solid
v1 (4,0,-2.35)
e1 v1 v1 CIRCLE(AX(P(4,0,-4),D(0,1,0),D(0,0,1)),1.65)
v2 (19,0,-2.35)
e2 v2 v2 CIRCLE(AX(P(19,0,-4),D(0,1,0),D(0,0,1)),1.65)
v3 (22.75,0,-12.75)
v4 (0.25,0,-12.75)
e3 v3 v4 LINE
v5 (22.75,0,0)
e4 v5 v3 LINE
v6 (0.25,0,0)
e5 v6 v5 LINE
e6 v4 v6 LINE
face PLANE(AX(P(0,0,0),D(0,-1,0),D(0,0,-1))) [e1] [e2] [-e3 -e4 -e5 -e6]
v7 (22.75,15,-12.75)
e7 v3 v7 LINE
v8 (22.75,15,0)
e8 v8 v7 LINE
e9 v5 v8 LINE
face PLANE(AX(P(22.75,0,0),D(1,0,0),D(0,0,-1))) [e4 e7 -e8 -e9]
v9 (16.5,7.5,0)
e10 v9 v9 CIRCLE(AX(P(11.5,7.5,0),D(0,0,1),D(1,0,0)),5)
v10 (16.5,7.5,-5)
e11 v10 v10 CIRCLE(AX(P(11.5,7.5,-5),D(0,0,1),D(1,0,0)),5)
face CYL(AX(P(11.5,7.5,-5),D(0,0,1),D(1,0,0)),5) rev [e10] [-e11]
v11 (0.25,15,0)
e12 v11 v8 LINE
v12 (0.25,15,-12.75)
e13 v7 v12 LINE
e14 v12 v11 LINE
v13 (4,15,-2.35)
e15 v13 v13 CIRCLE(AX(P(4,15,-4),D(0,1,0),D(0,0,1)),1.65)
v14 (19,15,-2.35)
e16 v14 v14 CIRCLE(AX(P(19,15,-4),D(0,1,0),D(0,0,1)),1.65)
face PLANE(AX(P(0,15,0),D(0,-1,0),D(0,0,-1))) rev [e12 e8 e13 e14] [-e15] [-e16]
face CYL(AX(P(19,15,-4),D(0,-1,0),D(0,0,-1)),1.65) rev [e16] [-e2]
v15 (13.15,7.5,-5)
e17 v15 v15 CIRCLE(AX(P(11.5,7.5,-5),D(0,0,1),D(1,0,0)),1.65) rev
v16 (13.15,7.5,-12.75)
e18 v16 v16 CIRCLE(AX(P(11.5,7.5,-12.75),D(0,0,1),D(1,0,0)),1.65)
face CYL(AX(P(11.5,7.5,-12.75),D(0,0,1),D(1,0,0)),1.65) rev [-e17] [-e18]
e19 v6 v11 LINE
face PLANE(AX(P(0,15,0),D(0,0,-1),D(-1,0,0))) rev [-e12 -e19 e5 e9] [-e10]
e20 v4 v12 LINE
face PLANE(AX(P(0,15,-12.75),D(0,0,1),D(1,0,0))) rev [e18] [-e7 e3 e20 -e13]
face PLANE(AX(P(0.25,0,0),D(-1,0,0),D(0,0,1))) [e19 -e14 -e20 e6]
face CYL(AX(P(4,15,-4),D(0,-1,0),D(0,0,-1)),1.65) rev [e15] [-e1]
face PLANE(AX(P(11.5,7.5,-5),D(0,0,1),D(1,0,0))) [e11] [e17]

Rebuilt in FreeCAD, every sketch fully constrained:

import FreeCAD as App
import Part
import Sketcher
from FreeCAD import Vector
Q = App.Units.Quantity

doc = App.newDocument("Part")
body = doc.addObject("PartDesign::Body", "Body")

# Sketch on XZ plane
sketch1 = body.newObject("Sketcher::SketchObject", "Sketch")
sketch1.AttachmentSupport = (doc.getObject("XZ_Plane"), [""])
sketch1.MapMode = "FlatFace"
sketch1.addGeometry(Part.LineSegment(Vector(0, -12.8, 0), Vector(0, 0, 0)), False)
sketch1.addGeometry(Part.LineSegment(Vector(0, 0, 0), Vector(23, 0, 0)), False)
sketch1.addGeometry(Part.LineSegment(Vector(23, 0, 0), Vector(23, -12.8, 0)), False)
sketch1.addGeometry(Part.LineSegment(Vector(23, -12.8, 0), Vector(0, -12.8, 0)), False)
sketch1.addGeometry(Part.Circle(Vector(4, -4, 0), Vector(0, 0, 1), 1.6), False)
sketch1.addGeometry(Part.Circle(Vector(19, -4, 0), Vector(0, 0, 1), 1.6), False)
sketch1.addConstraint(Sketcher.Constraint("Coincident", 0, 2, 1, 1))
sketch1.addConstraint(Sketcher.Constraint("Coincident", 1, 2, 2, 1))
sketch1.addConstraint(Sketcher.Constraint("Coincident", 2, 2, 3, 1))
sketch1.addConstraint(Sketcher.Constraint("Coincident", 3, 2, 0, 1))
sketch1.addConstraint(Sketcher.Constraint("Vertical", 0))
sketch1.addConstraint(Sketcher.Constraint("Horizontal", 1))
sketch1.addConstraint(Sketcher.Constraint("Vertical", 2))
sketch1.addConstraint(Sketcher.Constraint("Horizontal", 3))
sketch1.addConstraint(Sketcher.Constraint("Coincident", 0, 2, -1, 1))
sketch1.addConstraint(Sketcher.Constraint("Equal", 4, 5))
sketch1.addConstraint(Sketcher.Constraint("Horizontal", 4, 3, 5, 3))
sketch1.addConstraint(Sketcher.Constraint("Diameter", 4, Q("3.3 mm")))
sketch1.addConstraint(Sketcher.Constraint("DistanceX", 1, 1, 1, 2, Q("23 mm")))
sketch1.addConstraint(Sketcher.Constraint("DistanceX", -1, 1, 4, 3, Q("4 mm")))
sketch1.addConstraint(Sketcher.Constraint("DistanceY", 4, 3, -1, 1, Q("4 mm")))
sketch1.addConstraint(Sketcher.Constraint("DistanceX", -1, 1, 5, 3, Q("19 mm")))
sketch1.addConstraint(Sketcher.Constraint("DistanceY", 0, 1, 0, 2, Q("12.75 mm")))
pad1 = body.newObject("PartDesign::Pad", "Pad")
pad1.Profile = sketch1
pad1.Length = 15
pad1.Reversed = True

# Sketch on XY plane
sketch2 = body.newObject("Sketcher::SketchObject", "Sketch001")
sketch2.AttachmentSupport = (doc.getObject("XY_Plane"), [""])
sketch2.MapMode = "FlatFace"
sketch2.addGeometry(Part.Circle(Vector(11.5, 7.5, 0), Vector(0, 0, 1), 1.6), False)
sketch2.addConstraint(Sketcher.Constraint("Diameter", 0, Q("3.3 mm")))
sketch2.addConstraint(Sketcher.Constraint("DistanceX", -1, 1, 0, 3, Q("11.5 mm")))
sketch2.addConstraint(Sketcher.Constraint("DistanceY", -1, 1, 0, 3, Q("7.5 mm")))
pocket1 = body.newObject("PartDesign::Pocket", "Pocket")
pocket1.Profile = sketch2
pocket1.Type = "ThroughAll"

# Sketch on XY plane
sketch3 = body.newObject("Sketcher::SketchObject", "Sketch002")
sketch3.AttachmentSupport = (doc.getObject("XY_Plane"), [""])
sketch3.MapMode = "FlatFace"
sketch3.addGeometry(Part.Circle(Vector(12, 8, 0), Vector(0, 0, 1), 5), False)
sketch3.addConstraint(Sketcher.Constraint("Diameter", 0, Q("10 mm")))
sketch3.addConstraint(Sketcher.Constraint("DistanceX", -1, 1, 0, 3, Q("11.5 mm")))
sketch3.addConstraint(Sketcher.Constraint("DistanceY", -1, 1, 0, 3, Q("7.5 mm")))
pocket2 = body.newObject("PartDesign::Pocket", "Pocket001")
pocket2.Profile = sketch3
pocket2.Length = 5

# Sketch on XZ plane
sketch4 = body.newObject("Sketcher::SketchObject", "Sketch003")
sketch4.AttachmentSupport = (doc.getObject("XZ_Plane"), [""])
sketch4.MapMode = "FlatFace"
sketch4.AttachmentOffset = App.Placement(Vector(0, 0, -15), App.Rotation())
sketch4.addGeometry(Part.LineSegment(Vector(-4, -17, 0), Vector(-4, 4, 0)), False)
sketch4.addGeometry(Part.LineSegment(Vector(-4, 4, 0), Vector(27, 4, 0)), False)
sketch4.addGeometry(Part.LineSegment(Vector(27, 4, 0), Vector(27, -17, 0)), False)
sketch4.addGeometry(Part.LineSegment(Vector(27, -17, 0), Vector(-4, -17, 0)), False)
sketch4.addGeometry(Part.LineSegment(Vector(23, 0, 0), Vector(0, 0, 0)), False)
sketch4.addGeometry(Part.LineSegment(Vector(0, 0, 0), Vector(0, -13, 0)), False)
sketch4.addGeometry(Part.LineSegment(Vector(0, -13, 0), Vector(23, -13, 0)), False)
sketch4.addGeometry(Part.LineSegment(Vector(23, -13, 0), Vector(23, 0, 0)), False)
sketch4.addConstraint(Sketcher.Constraint("Coincident", 0, 2, 1, 1))
sketch4.addConstraint(Sketcher.Constraint("Coincident", 1, 2, 2, 1))
sketch4.addConstraint(Sketcher.Constraint("Coincident", 2, 2, 3, 1))
sketch4.addConstraint(Sketcher.Constraint("Coincident", 3, 2, 0, 1))
sketch4.addConstraint(Sketcher.Constraint("Coincident", 4, 2, 5, 1))
sketch4.addConstraint(Sketcher.Constraint("Coincident", 5, 2, 6, 1))
sketch4.addConstraint(Sketcher.Constraint("Coincident", 6, 2, 7, 1))
sketch4.addConstraint(Sketcher.Constraint("Coincident", 7, 2, 4, 1))
sketch4.addConstraint(Sketcher.Constraint("Vertical", 0))
sketch4.addConstraint(Sketcher.Constraint("Horizontal", 1))
sketch4.addConstraint(Sketcher.Constraint("Vertical", 2))
sketch4.addConstraint(Sketcher.Constraint("Horizontal", 3))
sketch4.addConstraint(Sketcher.Constraint("Horizontal", 4))
sketch4.addConstraint(Sketcher.Constraint("Vertical", 5))
sketch4.addConstraint(Sketcher.Constraint("Horizontal", 6))
sketch4.addConstraint(Sketcher.Constraint("Vertical", 7))
sketch4.addConstraint(Sketcher.Constraint("PointOnObject", 4, 2, -1))
sketch4.addConstraint(Sketcher.Constraint("DistanceX", 4, 2, 4, 1, Q("22.5 mm")))
sketch4.addConstraint(Sketcher.Constraint("DistanceY", 5, 2, 5, 1, Q("12.75 mm")))
sketch4.addConstraint(Sketcher.Constraint("DistanceX", 1, 1, 1, 2, Q("31.054 mm")))
sketch4.addConstraint(Sketcher.Constraint("DistanceY", 0, 1, 0, 2, Q("20.804 mm")))
sketch4.addConstraint(Sketcher.Constraint("DistanceX", -1, 1, 4, 2, Q("0.25 mm")))
sketch4.addConstraint(Sketcher.Constraint("DistanceX", 0, 2, -1, 1, Q("4.027 mm")))
sketch4.addConstraint(Sketcher.Constraint("DistanceY", -1, 1, 0, 2, Q("4.027 mm")))
pocket3 = body.newObject("PartDesign::Pocket", "Pocket002")
pocket3.Profile = sketch4
pocket3.Type = "ThroughAll"
pocket3.Reversed = True

doc.recompute()
